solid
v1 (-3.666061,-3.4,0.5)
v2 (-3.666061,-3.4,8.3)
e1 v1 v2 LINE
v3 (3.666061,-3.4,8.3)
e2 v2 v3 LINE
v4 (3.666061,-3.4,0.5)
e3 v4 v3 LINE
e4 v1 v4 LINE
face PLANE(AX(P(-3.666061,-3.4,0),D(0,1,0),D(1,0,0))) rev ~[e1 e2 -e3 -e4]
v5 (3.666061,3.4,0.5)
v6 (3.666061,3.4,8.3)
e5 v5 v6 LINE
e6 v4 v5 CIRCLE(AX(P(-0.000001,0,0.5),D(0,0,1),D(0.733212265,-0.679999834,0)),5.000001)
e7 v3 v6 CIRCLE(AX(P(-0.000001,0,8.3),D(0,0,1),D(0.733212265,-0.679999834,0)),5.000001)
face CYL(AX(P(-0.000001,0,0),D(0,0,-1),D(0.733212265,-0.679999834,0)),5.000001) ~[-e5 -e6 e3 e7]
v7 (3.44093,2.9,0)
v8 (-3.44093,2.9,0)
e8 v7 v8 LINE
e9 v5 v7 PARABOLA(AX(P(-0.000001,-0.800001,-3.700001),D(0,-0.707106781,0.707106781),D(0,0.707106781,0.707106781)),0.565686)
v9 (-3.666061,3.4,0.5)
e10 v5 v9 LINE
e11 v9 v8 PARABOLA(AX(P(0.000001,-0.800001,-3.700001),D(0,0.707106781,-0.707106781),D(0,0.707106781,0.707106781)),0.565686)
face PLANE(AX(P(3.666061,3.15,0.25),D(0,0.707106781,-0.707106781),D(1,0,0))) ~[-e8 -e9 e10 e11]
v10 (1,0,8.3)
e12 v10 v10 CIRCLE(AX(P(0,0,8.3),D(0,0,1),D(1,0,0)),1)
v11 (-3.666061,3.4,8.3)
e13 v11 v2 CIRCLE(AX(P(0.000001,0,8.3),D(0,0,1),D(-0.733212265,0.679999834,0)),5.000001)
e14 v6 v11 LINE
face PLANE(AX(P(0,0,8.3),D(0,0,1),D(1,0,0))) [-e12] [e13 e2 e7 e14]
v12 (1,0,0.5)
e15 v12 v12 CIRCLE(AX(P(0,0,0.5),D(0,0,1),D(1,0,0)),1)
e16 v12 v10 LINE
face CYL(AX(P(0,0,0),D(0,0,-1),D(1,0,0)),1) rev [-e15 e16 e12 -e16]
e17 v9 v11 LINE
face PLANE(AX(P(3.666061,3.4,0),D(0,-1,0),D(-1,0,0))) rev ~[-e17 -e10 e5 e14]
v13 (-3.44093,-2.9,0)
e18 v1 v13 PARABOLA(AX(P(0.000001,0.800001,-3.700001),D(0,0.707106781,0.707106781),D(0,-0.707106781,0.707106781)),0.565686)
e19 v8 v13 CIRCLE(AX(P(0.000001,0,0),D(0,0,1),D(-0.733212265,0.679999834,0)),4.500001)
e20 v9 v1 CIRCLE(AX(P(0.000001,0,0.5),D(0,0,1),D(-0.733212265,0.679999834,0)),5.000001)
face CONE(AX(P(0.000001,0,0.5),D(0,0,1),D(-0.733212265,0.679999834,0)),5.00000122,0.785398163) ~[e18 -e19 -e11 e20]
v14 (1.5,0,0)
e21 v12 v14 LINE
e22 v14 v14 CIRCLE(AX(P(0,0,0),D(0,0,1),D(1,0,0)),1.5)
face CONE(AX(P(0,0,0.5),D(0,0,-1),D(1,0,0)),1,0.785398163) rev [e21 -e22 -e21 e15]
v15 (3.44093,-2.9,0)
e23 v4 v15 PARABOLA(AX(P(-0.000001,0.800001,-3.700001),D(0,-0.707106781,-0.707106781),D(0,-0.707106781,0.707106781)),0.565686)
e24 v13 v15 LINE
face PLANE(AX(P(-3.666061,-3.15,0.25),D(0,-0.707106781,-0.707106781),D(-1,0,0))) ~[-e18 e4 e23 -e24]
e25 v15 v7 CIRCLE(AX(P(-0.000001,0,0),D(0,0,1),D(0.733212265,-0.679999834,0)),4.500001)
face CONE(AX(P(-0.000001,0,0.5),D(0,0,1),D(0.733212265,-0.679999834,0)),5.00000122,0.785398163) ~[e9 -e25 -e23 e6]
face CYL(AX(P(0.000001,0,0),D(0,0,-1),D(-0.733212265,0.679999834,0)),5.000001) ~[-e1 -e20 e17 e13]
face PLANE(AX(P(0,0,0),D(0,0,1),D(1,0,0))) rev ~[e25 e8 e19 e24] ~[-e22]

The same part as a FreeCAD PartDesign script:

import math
import FreeCAD as App
import Part
import Sketcher
Q = App.Units.Quantity


def edges_at(feature, points):
    """Names of the edges that pass closest to the given points."""
    edges = feature.Shape.Edges
    near = lambda p: min(range(len(edges)), key=lambda i: edges[i].distToShape(Part.Vertex(*p))[0])
    return sorted({f"Edge{near(p) + 1}" for p in points})

doc = App.newDocument("Part")
params = doc.addObject("Spreadsheet::Sheet", "Params")
for row, (alias, value) in enumerate([
    ("sketch1_diameter", "2 mm"),
    ("sketch1_radius", "5.000001 mm"),
    ("pad1_length", "8.3 mm"),
    ("chamfer_size", "0.5 mm"),
], start=1):
    params.set(f"A{row}", alias)
    params.set(f"B{row}", "=" + value)
    params.setAlias(f"B{row}", alias)

body = doc.addObject("PartDesign::Body", "Body")

sketch1 = body.newObject("Sketcher::SketchObject", "Sketch")
sketch1.AttachmentSupport = (doc.getObject("XY_Plane"), [""])
sketch1.MapMode = "FlatFace"
sketch1.addGeometry(Part.LineSegment(App.Vector(3.666061, 3.4, 0), App.Vector(-3.666061, 3.4, 0)), False)
sketch1.addGeometry(Part.ArcOfCircle(Part.Circle(App.Vector(0.000001, 0, 0), App.Vector(0, 0, 1), 5.000001), math.radians(137.15637), math.radians(222.84363)), False)
sketch1.addGeometry(Part.LineSegment(App.Vector(-3.666061, -3.4, 0), App.Vector(3.666061, -3.4, 0)), False)
sketch1.addGeometry(Part.ArcOfCircle(Part.Circle(App.Vector(-0.000001, 0, 0), App.Vector(0, 0, 1), 5.000001), math.radians(-42.84363), math.radians(42.84363)), False)
sketch1.addGeometry(Part.Circle(App.Vector(0, 0, 0), App.Vector(0, 0, 1), 1), False)
sketch1.addConstraint(Sketcher.Constraint("Coincident", 0, 2, 1, 1))
sketch1.addConstraint(Sketcher.Constraint("Coincident", 1, 2, 2, 1))
sketch1.addConstraint(Sketcher.Constraint("Coincident", 2, 2, 3, 1))
sketch1.addConstraint(Sketcher.Constraint("Coincident", 3, 2, 0, 1))
sketch1.addConstraint(Sketcher.Constraint("Horizontal", 0))
sketch1.addConstraint(Sketcher.Constraint("Horizontal", 2))
sketch1.addConstraint(Sketcher.Constraint("Coincident", 1, 3, -1, 1))
sketch1.addConstraint(Sketcher.Constraint("Coincident", 3, 3, -1, 1))
sketch1.addConstraint(Sketcher.Constraint("Coincident", 4, 3, -1, 1))
sketch1.addConstraint(Sketcher.Constraint("Equal", 1, 3))
sketch1.addConstraint(Sketcher.Constraint("Vertical", 0, 2, 1, 2))
sketch1.addConstraint(Sketcher.Constraint("Diameter", 4, Q("2 mm")))
sketch1.addConstraint(Sketcher.Constraint("Radius", 1, Q("5.000001 mm")))
sketch1.addConstraint(Sketcher.Constraint("DistanceY", -1, 1, 0, 2, Q("3.4 mm")))
sketch1.setExpression("Constraints[11]", "Params.sketch1_diameter")
sketch1.setExpression("Constraints[12]", "Params.sketch1_radius")
pad1 = body.newObject("PartDesign::Pad", "Pad")
pad1.Profile = sketch1
pad1.setExpression("Length", "Params.pad1_length")
doc.recompute()

chamfer = body.newObject("PartDesign::Chamfer", "Chamfer")
chamfer.Base = (pad1, edges_at(pad1, [
    (-5, 0, 0),
    (0, -3.4, 0),
    (5, 0, 0),
    (0, 3.4, 0),
    (-1, 0, 0),
]))
chamfer.setExpression("Size", "Params.chamfer_size")

doc.recompute()
